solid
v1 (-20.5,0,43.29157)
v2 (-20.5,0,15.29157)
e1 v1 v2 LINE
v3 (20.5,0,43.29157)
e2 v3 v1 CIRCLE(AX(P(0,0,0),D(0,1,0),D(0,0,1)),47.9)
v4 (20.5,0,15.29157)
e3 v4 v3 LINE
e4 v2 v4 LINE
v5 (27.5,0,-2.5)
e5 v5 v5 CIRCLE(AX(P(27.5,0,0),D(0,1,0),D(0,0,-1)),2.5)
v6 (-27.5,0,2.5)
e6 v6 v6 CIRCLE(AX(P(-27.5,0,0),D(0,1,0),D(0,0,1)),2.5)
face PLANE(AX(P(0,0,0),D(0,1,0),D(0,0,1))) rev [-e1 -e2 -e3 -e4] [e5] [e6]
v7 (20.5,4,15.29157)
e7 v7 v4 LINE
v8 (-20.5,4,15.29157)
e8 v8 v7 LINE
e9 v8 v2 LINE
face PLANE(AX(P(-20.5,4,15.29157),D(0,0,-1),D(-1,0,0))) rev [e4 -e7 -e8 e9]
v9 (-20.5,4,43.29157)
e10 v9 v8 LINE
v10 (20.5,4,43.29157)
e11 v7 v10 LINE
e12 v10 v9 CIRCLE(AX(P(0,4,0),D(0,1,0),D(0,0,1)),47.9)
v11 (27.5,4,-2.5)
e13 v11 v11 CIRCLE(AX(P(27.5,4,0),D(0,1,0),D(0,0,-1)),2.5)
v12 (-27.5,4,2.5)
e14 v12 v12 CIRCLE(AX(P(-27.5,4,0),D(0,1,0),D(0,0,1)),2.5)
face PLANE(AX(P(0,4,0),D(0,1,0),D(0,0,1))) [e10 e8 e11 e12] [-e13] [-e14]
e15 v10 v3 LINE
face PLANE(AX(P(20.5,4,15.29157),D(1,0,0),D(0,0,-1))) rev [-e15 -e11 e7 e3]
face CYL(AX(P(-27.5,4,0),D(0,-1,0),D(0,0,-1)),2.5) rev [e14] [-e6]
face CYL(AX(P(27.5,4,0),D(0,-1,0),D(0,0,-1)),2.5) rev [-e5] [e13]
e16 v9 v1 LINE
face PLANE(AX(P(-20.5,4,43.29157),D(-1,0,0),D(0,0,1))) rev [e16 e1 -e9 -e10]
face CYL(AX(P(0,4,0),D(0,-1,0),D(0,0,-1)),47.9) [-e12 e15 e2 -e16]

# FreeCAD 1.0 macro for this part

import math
import FreeCAD as App
import Part
import Sketcher
from FreeCAD import Vector

doc = App.newDocument("Part")
params = doc.addObject("Spreadsheet::Sheet", "Params")
for row, (alias, value) in enumerate([
    ("sketch1_diameter", "5 mm"),
    ("sketch1_radius", "47.9 mm"),
    ("sketch1_width", "41 mm"),
    ("sketch1_height", "28 mm"),
    ("pad1_length", "4 mm"),
], start=1):
    params.set(f"A{row}", alias)
    params.set(f"B{row}", "=" + value)
    params.setAlias(f"B{row}", alias)

body = doc.addObject("PartDesign::Body", "Body")

# Sketch on XZ plane
sketch1 = body.newObject("Sketcher::SketchObject", "Sketch")
sketch1.AttachmentSupport = (doc.getObject("XZ_Plane"), [""])
sketch1.MapMode = "FlatFace"
sketch1.addGeometry(Part.LineSegment(Vector(-20.5, 43.3, 0), Vector(-20.5, 15.3, 0)), False)
sketch1.addGeometry(Part.LineSegment(Vector(-20.5, 15.3, 0), Vector(20.5, 15.3, 0)), False)
sketch1.addGeometry(Part.LineSegment(Vector(20.5, 15.3, 0), Vector(20.5, 43.3, 0)), False)
sketch1.addGeometry(Part.ArcOfCircle(Part.Circle(Vector(0, 0, 0), Vector(0, 0, 1), 47.9), math.radians(115), math.radians(425)), False)
sketch1.addGeometry(Part.Circle(Vector(-27.5, 0, 0), Vector(0, 0, 1), 2.5), False)
sketch1.addGeometry(Part.Circle(Vector(27.5, 0, 0), Vector(0, 0, 1), 2.5), False)
sketch1.addConstraint(Sketcher.Constraint("Coincident", 0, 2, 1, 1))
sketch1.addConstraint(Sketcher.Constraint("Coincident", 1, 2, 2, 1))
sketch1.addConstraint(Sketcher.Constraint("Coincident", 2, 2, 3, 2))
sketch1.addConstraint(Sketcher.Constraint("Coincident", 3, 1, 0, 1))
sketch1.addConstraint(Sketcher.Constraint("Vertical", 0))
sketch1.addConstraint(Sketcher.Constraint("Horizontal", 1))
sketch1.addConstraint(Sketcher.Constraint("Vertical", 2))
sketch1.addConstraint(Sketcher.Constraint("Coincident", 3, 3, -1, 1))
sketch1.addConstraint(Sketcher.Constraint("Equal", 4, 5))
sketch1.addConstraint(Sketcher.Constraint("Symmetric", 4, 3, 5, 3, -1, 1))
sketch1.addConstraint(Sketcher.Constraint("PointOnObject", 4, 3, -1))
sketch1.addConstraint(Sketcher.Constraint("Horizontal", 2, 2, 3, 1))
sketch1.addConstraint(Sketcher.Constraint("Diameter", 4, 5.0))
sketch1.addConstraint(Sketcher.Constraint("Radius", 3, 47.9))
sketch1.addConstraint(Sketcher.Constraint("DistanceX", 1, 1, 1, 2, 41.0))
sketch1.addConstraint(Sketcher.Constraint("DistanceY", 0, 2, 0, 1, 28.0))
sketch1.addConstraint(Sketcher.Constraint("DistanceX", 4, 3, 5, 3, 55.0))
sketch1.setExpression("Constraints[12]", "Params.sketch1_diameter")
sketch1.setExpression("Constraints[13]", "Params.sketch1_radius")
sketch1.setExpression("Constraints[14]", "Params.sketch1_width")
sketch1.setExpression("Constraints[15]", "Params.sketch1_height")
pad1 = body.newObject("PartDesign::Pad", "Pad")
pad1.Profile = sketch1
pad1.setExpression("Length", "Params.pad1_length")
pad1.Reversed = True

doc.recompute()
